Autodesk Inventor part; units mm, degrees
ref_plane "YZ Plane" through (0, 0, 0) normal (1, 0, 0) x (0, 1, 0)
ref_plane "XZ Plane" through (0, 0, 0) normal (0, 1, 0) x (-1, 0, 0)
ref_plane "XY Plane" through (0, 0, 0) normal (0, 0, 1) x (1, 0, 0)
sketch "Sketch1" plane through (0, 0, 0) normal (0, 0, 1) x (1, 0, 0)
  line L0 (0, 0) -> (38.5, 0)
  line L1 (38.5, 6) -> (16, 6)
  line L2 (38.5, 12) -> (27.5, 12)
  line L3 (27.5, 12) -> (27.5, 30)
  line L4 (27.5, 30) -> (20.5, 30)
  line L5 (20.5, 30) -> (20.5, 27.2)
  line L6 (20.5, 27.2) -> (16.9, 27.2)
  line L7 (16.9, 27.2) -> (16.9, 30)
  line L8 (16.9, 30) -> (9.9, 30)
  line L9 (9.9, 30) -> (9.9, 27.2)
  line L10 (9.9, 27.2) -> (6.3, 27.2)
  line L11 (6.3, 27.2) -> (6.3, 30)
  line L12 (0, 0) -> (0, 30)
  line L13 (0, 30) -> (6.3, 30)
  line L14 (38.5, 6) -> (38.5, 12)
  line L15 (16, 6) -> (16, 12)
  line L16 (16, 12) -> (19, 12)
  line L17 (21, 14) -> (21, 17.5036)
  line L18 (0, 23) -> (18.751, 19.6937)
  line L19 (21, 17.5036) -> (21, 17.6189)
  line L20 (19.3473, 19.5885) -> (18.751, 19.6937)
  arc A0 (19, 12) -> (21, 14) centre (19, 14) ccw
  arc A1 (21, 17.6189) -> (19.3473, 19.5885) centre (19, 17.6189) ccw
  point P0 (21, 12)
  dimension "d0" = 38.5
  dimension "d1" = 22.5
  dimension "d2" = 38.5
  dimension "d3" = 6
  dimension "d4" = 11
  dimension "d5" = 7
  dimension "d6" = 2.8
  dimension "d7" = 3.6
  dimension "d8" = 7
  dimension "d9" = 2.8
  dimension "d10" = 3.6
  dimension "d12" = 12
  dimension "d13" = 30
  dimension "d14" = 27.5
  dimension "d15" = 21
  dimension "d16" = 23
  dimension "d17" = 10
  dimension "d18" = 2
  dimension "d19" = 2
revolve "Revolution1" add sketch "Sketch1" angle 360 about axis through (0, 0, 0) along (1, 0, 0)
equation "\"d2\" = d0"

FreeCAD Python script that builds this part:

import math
import FreeCAD as App
import Part
import Sketcher
Q = App.Units.Quantity

doc = App.newDocument("Part")
body = doc.addObject("PartDesign::Body", "Body")

# Sketch on XY plane
sketch1 = doc.addObject("Sketcher::SketchObject", "Sketch")
body.addObject(sketch1)
sketch1.AttachmentSupport = (doc.XY_Plane, [""])
sketch1.MapMode = "FlatFace"
sketch1.addGeometry([
    Part.LineSegment(App.Vector(16, 6, 0), App.Vector(38.5, 6, 0)),  # 0
    Part.LineSegment(App.Vector(38.5, 6, 0), App.Vector(38.5, 12, 0)),  # 1
    Part.LineSegment(App.Vector(38.5, 12, 0), App.Vector(27.5, 12, 0)),  # 2
    Part.LineSegment(App.Vector(27.5, 12, 0), App.Vector(27.5, 30, 0)),  # 3
    Part.LineSegment(App.Vector(27.5, 30, 0), App.Vector(20.5, 30, 0)),  # 4
    Part.LineSegment(App.Vector(20.5, 30, 0), App.Vector(20.5, 27.2, 0)),  # 5
    Part.LineSegment(App.Vector(20.5, 27.2, 0), App.Vector(16.9, 27.2, 0)),  # 6
    Part.LineSegment(App.Vector(16.9, 27.2, 0), App.Vector(16.9, 30, 0)),  # 7
    Part.LineSegment(App.Vector(16.9, 30, 0), App.Vector(9.9, 30, 0)),  # 8
    Part.LineSegment(App.Vector(9.9, 30, 0), App.Vector(9.9, 27.2, 0)),  # 9
    Part.LineSegment(App.Vector(9.9, 27.2, 0), App.Vector(6.3, 27.2, 0)),  # 10
    Part.LineSegment(App.Vector(6.3, 27.2, 0), App.Vector(6.3, 30, 0)),  # 11
    Part.LineSegment(App.Vector(6.3, 30, 0), App.Vector(0, 30, 0)),  # 12
    Part.LineSegment(App.Vector(0, 30, 0), App.Vector(0, 23, 0)),  # 13
    Part.LineSegment(App.Vector(0, 23, 0), App.Vector(18.8, 19.7, 0)),  # 14
    Part.LineSegment(App.Vector(18.8, 19.7, 0), App.Vector(19.3, 19.6, 0)),  # 15
    Part.ArcOfCircle(Part.Circle(App.Vector(19, 17.6, 0), App.Vector(0, 0, 1), 2), math.radians(0), math.radians(80)),  # 16
    Part.LineSegment(App.Vector(21, 17.6, 0), App.Vector(21, 14, 0)),  # 17
    Part.ArcOfCircle(Part.Circle(App.Vector(19, 14, 0), App.Vector(0, 0, 1), 2), math.radians(-90), math.radians(0)),  # 18
    Part.LineSegment(App.Vector(19, 12, 0), App.Vector(16, 12, 0)),  # 19
    Part.LineSegment(App.Vector(16, 12, 0), App.Vector(16, 6, 0)),  # 20
], False)
sketch1.addConstraint([
    Sketcher.Constraint("Coincident", 0, 2, 1, 1),
    Sketcher.Constraint("Coincident", 1, 2, 2, 1),
    Sketcher.Constraint("Coincident", 2, 2, 3, 1),
    Sketcher.Constraint("Coincident", 3, 2, 4, 1),
    Sketcher.Constraint("Coincident", 4, 2, 5, 1),
    Sketcher.Constraint("Coincident", 5, 2, 6, 1),
    Sketcher.Constraint("Coincident", 6, 2, 7, 1),
    Sketcher.Constraint("Coincident", 7, 2, 8, 1),
    Sketcher.Constraint("Coincident", 8, 2, 9, 1),
    Sketcher.Constraint("Coincident", 9, 2, 10, 1),
    Sketcher.Constraint("Coincident", 10, 2, 11, 1),
    Sketcher.Constraint("Coincident", 11, 2, 12, 1),
    Sketcher.Constraint("Coincident", 12, 2, 13, 1),
    Sketcher.Constraint("Coincident", 13, 2, 14, 1),
    Sketcher.Constraint("Coincident", 14, 2, 15, 1),
    Sketcher.Constraint("Tangent", 15, 2, 16, 2),
    Sketcher.Constraint("Tangent", 16, 1, 17, 1),
    Sketcher.Constraint("Tangent", 17, 2, 18, 2),
    Sketcher.Constraint("Tangent", 18, 1, 19, 1),
    Sketcher.Constraint("Coincident", 19, 2, 20, 1),
    Sketcher.Constraint("Coincident", 20, 2, 0, 1),
    Sketcher.Constraint("Horizontal", 0),
    Sketcher.Constraint("Vertical", 1),
    Sketcher.Constraint("Horizontal", 2),
    Sketcher.Constraint("Vertical", 3),
    Sketcher.Constraint("Horizontal", 4),
    Sketcher.Constraint("Vertical", 5),
    Sketcher.Constraint("Horizontal", 6),
    Sketcher.Constraint("Vertical", 7),
    Sketcher.Constraint("Horizontal", 8),
    Sketcher.Constraint("Vertical", 9),
    Sketcher.Constraint("Horizontal", 10),
    Sketcher.Constraint("Vertical", 11),
    Sketcher.Constraint("Horizontal", 12),
    Sketcher.Constraint("Vertical", 13),
    Sketcher.Constraint("Vertical", 17),
    Sketcher.Constraint("Horizontal", 19),
    Sketcher.Constraint("Vertical", 20),
    Sketcher.Constraint("Equal", 16, 18),
    Sketcher.Constraint("PointOnObject", 12, 2, -2),
    Sketcher.Constraint("Parallel", 14, 15),
    Sketcher.Constraint("Horizontal", 4, 2, 7, 2),
    Sketcher.Constraint("Horizontal", 6, 2, 9, 2),
    Sketcher.Constraint("Horizontal", 8, 2, 11, 2),
    Sketcher.Constraint("Horizontal", 2, 2, 18, 1),
    Sketcher.Constraint("Equal", 4, 8),
    Sketcher.Constraint("Equal", 6, 10),
    Sketcher.Constraint("Equal", 8, 13),
    Sketcher.Constraint("Radius", 16, Q("2 mm")),
    Sketcher.Constraint("DistanceX", 2, 2, 2, 1, Q("11 mm")),
    Sketcher.Constraint("DistanceX", 4, 2, 4, 1, Q("7 mm")),
    Sketcher.Constraint("DistanceY", 1, 1, 1, 2, Q("6 mm")),
    Sketcher.Constraint("Angle", 14, Q("-10 deg")),
    Sketcher.Constraint("DistanceX", 0, 1, 0, 2, Q("22.5 mm")),
    Sketcher.Constraint("DistanceX", 6, 2, 6, 1, Q("3.6 mm")),
    Sketcher.Constraint("DistanceY", 5, 2, 5, 1, Q("2.8 mm")),
    Sketcher.Constraint("DistanceY", -1, 1, 0, 2, Q("6 mm")),
    Sketcher.Constraint("DistanceY", -1, 1, 3, 2, Q("30 mm")),
    Sketcher.Constraint("DistanceX", -1, 1, 16, 1, Q("21 mm")),
    Sketcher.Constraint("DistanceX", -1, 1, 0, 2, Q("38.5 mm")),
    Sketcher.Constraint("DistanceX", -1, 1, 14, 2, Q("18.751 mm")),
])
revolution = doc.addObject("PartDesign::Revolution", "Revolution")
body.addObject(revolution)
revolution.Profile = sketch1
revolution.ReferenceAxis = (sketch1, ["H_Axis"])
revolution.Angle = 360

doc.recompute()
